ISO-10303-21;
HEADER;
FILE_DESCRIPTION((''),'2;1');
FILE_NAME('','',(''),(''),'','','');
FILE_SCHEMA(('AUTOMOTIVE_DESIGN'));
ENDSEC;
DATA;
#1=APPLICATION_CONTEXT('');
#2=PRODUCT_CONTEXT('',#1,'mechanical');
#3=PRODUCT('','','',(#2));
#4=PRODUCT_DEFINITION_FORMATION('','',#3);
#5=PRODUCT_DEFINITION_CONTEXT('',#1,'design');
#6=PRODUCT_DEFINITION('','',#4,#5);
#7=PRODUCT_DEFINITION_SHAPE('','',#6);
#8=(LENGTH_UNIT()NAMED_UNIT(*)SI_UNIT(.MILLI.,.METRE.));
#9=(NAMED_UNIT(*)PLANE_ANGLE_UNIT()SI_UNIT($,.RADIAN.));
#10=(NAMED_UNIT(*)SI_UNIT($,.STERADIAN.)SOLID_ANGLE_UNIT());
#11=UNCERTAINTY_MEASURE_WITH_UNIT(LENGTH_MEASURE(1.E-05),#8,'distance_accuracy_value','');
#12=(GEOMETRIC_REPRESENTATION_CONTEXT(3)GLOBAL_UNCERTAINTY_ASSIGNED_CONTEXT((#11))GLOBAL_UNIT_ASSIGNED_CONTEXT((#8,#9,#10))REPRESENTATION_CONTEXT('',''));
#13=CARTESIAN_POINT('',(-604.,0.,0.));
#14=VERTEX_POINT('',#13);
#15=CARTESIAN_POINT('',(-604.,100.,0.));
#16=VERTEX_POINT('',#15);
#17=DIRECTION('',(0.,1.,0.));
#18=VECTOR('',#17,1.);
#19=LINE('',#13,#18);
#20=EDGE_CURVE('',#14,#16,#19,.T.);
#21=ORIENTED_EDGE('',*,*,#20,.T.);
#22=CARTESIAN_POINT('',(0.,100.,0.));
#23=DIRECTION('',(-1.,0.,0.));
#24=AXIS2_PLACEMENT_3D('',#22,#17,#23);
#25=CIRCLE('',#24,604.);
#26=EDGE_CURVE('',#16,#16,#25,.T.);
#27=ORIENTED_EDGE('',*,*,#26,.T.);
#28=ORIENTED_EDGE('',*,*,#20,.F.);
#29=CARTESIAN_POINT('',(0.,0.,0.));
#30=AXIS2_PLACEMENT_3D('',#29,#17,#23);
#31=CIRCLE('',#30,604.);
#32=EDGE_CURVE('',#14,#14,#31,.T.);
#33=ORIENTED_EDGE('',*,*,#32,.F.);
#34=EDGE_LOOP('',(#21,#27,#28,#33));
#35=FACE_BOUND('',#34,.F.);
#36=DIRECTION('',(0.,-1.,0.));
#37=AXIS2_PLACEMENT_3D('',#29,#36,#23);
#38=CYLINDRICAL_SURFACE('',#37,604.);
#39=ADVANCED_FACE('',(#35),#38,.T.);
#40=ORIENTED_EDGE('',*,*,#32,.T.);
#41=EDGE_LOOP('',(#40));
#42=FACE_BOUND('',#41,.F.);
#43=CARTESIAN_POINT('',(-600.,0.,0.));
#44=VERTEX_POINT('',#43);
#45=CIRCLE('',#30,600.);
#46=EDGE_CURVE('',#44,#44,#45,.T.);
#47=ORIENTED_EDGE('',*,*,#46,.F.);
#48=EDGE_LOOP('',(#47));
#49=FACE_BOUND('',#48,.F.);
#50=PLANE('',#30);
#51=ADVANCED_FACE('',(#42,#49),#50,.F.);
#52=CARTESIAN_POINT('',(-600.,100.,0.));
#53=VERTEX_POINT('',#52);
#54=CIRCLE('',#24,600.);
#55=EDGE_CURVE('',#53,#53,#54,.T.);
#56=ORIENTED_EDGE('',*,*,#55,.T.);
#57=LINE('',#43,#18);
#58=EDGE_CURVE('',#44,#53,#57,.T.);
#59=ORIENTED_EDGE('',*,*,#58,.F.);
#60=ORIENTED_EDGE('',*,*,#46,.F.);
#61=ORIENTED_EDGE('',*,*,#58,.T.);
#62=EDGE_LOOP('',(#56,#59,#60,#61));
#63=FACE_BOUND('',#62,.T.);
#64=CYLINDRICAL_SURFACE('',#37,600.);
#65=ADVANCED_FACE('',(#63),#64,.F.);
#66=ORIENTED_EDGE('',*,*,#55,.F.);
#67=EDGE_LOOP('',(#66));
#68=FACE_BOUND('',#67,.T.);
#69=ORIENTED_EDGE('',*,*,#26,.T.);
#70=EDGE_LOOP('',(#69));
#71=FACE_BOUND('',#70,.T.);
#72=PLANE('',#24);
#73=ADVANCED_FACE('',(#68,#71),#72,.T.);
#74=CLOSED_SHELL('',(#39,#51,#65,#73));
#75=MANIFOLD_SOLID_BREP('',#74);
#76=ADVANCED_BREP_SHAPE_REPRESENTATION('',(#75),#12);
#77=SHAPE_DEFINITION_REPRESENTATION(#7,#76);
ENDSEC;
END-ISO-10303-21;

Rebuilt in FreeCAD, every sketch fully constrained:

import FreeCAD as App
import Part
import Sketcher
from FreeCAD import Vector

doc = App.newDocument("Part")
body = doc.addObject("PartDesign::Body", "Body")

sketch1 = body.newObject("Sketcher::SketchObject", "Sketch")
sketch1.AttachmentSupport = (doc.getObject("XZ_Plane"), [""])
sketch1.MapMode = "FlatFace"
sketch1.addGeometry([
    Part.Circle(Vector(0, 0, 0), Vector(0, 0, 1), 604),
    Part.Circle(Vector(0, 0, 0), Vector(0, 0, 1), 600),
], False)
sketch1.addConstraint([
    Sketcher.Constraint("Coincident", 0, 3, -1, 1),
    Sketcher.Constraint("Coincident", 1, 3, -1, 1),
    Sketcher.Constraint("Diameter", 0, 1208.0),
    Sketcher.Constraint("Diameter", 1, 1200.0),
])
pad1 = body.newObject("PartDesign::Pad", "Pad")
pad1.Profile = sketch1
pad1.Length = 100
pad1.Reversed = True

doc.recompute()
